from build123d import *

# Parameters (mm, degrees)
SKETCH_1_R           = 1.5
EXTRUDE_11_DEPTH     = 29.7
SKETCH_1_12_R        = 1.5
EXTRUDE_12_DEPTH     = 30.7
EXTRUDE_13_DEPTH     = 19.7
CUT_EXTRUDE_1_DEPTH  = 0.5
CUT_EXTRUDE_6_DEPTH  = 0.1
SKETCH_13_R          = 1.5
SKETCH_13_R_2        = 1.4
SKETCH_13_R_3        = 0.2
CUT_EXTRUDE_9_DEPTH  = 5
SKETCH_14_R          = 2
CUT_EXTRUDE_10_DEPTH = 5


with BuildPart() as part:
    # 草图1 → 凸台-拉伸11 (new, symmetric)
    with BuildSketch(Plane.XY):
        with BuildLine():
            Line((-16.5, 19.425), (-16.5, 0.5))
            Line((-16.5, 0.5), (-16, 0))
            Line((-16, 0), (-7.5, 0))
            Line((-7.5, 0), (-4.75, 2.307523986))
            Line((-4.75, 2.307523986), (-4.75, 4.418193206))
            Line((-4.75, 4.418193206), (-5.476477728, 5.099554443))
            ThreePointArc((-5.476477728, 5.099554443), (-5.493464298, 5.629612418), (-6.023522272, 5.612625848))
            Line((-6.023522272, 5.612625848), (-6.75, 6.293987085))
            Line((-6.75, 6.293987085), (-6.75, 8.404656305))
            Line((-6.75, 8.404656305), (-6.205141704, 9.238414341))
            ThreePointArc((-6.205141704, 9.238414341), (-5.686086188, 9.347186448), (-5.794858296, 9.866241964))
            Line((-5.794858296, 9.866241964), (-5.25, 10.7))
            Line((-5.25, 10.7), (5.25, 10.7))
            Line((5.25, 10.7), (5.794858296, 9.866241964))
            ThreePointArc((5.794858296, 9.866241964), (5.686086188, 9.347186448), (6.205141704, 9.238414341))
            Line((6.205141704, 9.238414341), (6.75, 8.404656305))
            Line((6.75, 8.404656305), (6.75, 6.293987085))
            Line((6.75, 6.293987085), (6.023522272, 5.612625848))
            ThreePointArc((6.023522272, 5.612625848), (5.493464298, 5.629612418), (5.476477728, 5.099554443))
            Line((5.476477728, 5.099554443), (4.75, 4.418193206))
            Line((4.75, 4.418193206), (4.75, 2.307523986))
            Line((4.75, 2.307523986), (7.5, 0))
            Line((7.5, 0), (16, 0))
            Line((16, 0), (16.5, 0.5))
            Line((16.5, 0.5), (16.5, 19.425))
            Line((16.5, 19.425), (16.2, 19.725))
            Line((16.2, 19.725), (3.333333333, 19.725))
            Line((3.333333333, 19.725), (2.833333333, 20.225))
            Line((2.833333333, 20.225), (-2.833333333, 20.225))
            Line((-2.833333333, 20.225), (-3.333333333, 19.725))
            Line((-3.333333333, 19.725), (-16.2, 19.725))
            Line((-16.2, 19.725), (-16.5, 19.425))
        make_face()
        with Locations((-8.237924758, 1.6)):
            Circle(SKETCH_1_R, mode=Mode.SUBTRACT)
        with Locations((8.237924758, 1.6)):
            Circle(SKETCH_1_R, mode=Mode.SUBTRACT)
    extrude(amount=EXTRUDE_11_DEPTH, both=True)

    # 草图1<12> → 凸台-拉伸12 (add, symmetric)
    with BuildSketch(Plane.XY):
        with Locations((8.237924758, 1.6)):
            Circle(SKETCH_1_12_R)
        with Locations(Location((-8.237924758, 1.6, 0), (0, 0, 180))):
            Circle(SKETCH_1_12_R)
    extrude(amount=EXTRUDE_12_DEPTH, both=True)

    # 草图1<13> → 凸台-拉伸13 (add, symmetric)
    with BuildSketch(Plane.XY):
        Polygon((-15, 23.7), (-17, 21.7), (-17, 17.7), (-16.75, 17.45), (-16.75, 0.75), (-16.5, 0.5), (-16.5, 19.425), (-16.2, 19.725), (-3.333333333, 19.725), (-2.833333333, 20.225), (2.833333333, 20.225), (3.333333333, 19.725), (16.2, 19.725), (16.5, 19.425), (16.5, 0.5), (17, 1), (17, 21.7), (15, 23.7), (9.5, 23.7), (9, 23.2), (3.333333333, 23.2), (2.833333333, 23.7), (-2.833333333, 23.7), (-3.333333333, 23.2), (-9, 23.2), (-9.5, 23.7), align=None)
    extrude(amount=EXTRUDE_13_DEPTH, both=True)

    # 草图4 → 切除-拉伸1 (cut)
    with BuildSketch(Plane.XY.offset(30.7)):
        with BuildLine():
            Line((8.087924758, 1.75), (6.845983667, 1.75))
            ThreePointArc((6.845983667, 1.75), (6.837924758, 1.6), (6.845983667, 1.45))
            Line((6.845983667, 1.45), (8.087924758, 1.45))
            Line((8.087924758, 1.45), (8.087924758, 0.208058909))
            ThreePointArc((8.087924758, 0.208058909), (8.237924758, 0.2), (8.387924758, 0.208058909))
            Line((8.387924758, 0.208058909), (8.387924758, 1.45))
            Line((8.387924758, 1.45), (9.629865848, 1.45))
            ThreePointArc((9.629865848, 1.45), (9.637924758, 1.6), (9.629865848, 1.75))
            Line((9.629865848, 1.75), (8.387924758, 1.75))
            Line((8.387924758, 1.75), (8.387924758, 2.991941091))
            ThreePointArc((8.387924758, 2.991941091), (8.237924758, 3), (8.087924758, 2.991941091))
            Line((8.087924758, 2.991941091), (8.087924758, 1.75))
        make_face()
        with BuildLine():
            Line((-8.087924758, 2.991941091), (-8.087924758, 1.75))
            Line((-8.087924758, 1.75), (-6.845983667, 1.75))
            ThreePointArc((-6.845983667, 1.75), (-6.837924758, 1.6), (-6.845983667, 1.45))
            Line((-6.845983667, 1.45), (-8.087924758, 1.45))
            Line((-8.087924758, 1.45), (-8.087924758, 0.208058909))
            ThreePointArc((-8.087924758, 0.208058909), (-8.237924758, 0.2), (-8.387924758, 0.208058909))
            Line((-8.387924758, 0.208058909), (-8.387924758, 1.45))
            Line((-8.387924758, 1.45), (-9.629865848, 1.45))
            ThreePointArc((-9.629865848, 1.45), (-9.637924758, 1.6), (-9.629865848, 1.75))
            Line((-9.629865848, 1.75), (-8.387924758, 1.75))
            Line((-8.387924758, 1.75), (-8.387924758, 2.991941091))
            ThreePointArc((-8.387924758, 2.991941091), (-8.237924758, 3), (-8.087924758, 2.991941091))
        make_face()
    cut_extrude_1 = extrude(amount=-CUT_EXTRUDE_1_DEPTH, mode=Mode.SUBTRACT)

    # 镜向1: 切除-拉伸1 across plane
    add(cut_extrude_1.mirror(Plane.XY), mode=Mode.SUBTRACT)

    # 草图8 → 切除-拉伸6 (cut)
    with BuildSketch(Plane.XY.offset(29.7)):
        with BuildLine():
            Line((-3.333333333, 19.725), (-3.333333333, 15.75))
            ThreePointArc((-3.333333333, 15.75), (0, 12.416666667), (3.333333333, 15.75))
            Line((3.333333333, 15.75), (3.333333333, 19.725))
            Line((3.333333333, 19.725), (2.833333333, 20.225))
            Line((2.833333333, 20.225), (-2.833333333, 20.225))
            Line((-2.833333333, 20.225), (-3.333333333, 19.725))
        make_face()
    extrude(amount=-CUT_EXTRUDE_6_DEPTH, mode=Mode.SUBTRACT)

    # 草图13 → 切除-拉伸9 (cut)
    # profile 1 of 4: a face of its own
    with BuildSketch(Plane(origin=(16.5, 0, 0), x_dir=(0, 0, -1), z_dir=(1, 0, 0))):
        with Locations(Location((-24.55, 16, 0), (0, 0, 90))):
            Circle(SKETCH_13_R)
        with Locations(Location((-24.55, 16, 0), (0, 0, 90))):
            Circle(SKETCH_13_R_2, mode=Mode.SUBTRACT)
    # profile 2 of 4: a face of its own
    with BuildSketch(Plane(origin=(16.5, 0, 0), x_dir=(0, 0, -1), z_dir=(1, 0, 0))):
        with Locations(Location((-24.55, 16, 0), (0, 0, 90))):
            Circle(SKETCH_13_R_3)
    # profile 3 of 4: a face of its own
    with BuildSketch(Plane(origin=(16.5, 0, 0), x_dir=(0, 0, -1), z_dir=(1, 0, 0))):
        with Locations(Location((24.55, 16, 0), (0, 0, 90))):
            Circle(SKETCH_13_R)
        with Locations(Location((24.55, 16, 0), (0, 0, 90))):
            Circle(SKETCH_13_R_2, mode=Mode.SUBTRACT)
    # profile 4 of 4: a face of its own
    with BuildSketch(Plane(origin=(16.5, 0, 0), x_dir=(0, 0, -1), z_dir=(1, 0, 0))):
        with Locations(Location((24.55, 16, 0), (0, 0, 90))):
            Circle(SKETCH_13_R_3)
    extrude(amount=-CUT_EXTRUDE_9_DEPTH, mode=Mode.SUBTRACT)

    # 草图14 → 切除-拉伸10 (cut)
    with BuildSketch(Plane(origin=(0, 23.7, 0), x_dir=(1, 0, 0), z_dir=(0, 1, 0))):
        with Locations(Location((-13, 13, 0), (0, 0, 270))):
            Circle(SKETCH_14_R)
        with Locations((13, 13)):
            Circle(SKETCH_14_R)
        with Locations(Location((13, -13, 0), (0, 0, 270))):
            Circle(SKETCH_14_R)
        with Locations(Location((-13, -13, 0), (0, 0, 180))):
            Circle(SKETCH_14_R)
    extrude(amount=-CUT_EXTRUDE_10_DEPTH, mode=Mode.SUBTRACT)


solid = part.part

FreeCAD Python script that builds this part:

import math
import FreeCAD as App
import Part
import Sketcher
Q = App.Units.Quantity

doc = App.newDocument("Part")
body = doc.addObject("PartDesign::Body", "Body")

sketch1 = doc.addObject("Sketcher::SketchObject", "Sketch")
body.addObject(sketch1)
sketch1.AttachmentSupport = (doc.XY_Plane, [""])
sketch1.MapMode = "FlatFace"
sketch1.addGeometry([
    Part.LineSegment(App.Vector(-16.5, 19.425, 0), App.Vector(-16.5, 0.5, 0)),
    Part.LineSegment(App.Vector(-16.5, 0.5, 0), App.Vector(-16, 0, 0)),
    Part.LineSegment(App.Vector(-16, 0, 0), App.Vector(-7.5, 0, 0)),
    Part.LineSegment(App.Vector(-7.5, 0, 0), App.Vector(-4.75, 2.307524, 0)),
    Part.LineSegment(App.Vector(-4.75, 2.307524, 0), App.Vector(-4.75, 4.418193, 0)),
    Part.LineSegment(App.Vector(-4.75, 4.418193, 0), App.Vector(-5.476478, 5.099554, 0)),
    Part.ArcOfCircle(Part.Circle(App.Vector(-5.75, 5.35609, 0), App.Vector(0, 0, 1), 0.375), math.radians(-43.164492), math.radians(136.835508)),
    Part.LineSegment(App.Vector(-6.023522, 5.612626, 0), App.Vector(-6.75, 6.293987, 0)),
    Part.LineSegment(App.Vector(-6.75, 6.293987, 0), App.Vector(-6.75, 8.404656, 0)),
    Part.LineSegment(App.Vector(-6.75, 8.404656, 0), App.Vector(-6.205142, 9.238414, 0)),
    Part.ArcOfCircle(Part.Circle(App.Vector(-6, 9.552328, 0), App.Vector(0, 0, 1), 0.375), math.radians(-123.164492), math.radians(56.835508)),
    Part.LineSegment(App.Vector(-5.794858, 9.866242, 0), App.Vector(-5.25, 10.7, 0)),
    Part.LineSegment(App.Vector(-5.25, 10.7, 0), App.Vector(5.25, 10.7, 0)),
    Part.LineSegment(App.Vector(5.25, 10.7, 0), App.Vector(5.794858, 9.866242, 0)),
    Part.ArcOfCircle(Part.Circle(App.Vector(6, 9.552328, 0), App.Vector(0, 0, 1), 0.375), math.radians(123.164492), math.radians(303.164492)),
    Part.LineSegment(App.Vector(6.205142, 9.238414, 0), App.Vector(6.75, 8.404656, 0)),
    Part.LineSegment(App.Vector(6.75, 8.404656, 0), App.Vector(6.75, 6.293987, 0)),
    Part.LineSegment(App.Vector(6.75, 6.293987, 0), App.Vector(6.023522, 5.612626, 0)),
    Part.ArcOfCircle(Part.Circle(App.Vector(5.75, 5.35609, 0), App.Vector(0, 0, 1), 0.375), math.radians(43.164492), math.radians(223.164492)),
    Part.LineSegment(App.Vector(5.476478, 5.099554, 0), App.Vector(4.75, 4.418193, 0)),
    Part.LineSegment(App.Vector(4.75, 4.418193, 0), App.Vector(4.75, 2.307524, 0)),
    Part.LineSegment(App.Vector(4.75, 2.307524, 0), App.Vector(7.5, 0, 0)),
    Part.LineSegment(App.Vector(7.5, 0, 0), App.Vector(16, 0, 0)),
    Part.LineSegment(App.Vector(16, 0, 0), App.Vector(16.5, 0.5, 0)),
    Part.LineSegment(App.Vector(16.5, 0.5, 0), App.Vector(16.5, 19.425, 0)),
    Part.LineSegment(App.Vector(16.5, 19.425, 0), App.Vector(16.2, 19.725, 0)),
    Part.LineSegment(App.Vector(16.2, 19.725, 0), App.Vector(3.333333, 19.725, 0)),
    Part.LineSegment(App.Vector(3.333333, 19.725, 0), App.Vector(2.833333, 20.225, 0)),
    Part.LineSegment(App.Vector(2.833333, 20.225, 0), App.Vector(-2.833333, 20.225, 0)),
    Part.LineSegment(App.Vector(-2.833333, 20.225, 0), App.Vector(-3.333333, 19.725, 0)),
    Part.LineSegment(App.Vector(-3.333333, 19.725, 0), App.Vector(-16.2, 19.725, 0)),
    Part.LineSegment(App.Vector(-16.2, 19.725, 0), App.Vector(-16.5, 19.425, 0)),
    Part.Circle(App.Vector(-8.237925, 1.6, 0), App.Vector(0, 0, 1), 1.5),
    Part.Circle(App.Vector(8.237925, 1.6, 0), App.Vector(0, 0, 1), 1.5),
], False)
sketch1.addConstraint([
    Sketcher.Constraint("Coincident", 0, 2, 1, 1),
    Sketcher.Constraint("Coincident", 1, 2, 2, 1),
    Sketcher.Constraint("Coincident", 2, 2, 3, 1),
    Sketcher.Constraint("Coincident", 3, 2, 4, 1),
    Sketcher.Constraint("Coincident", 4, 2, 5, 1),
    Sketcher.Constraint("Coincident", 5, 2, 6, 1),
    Sketcher.Constraint("Coincident", 6, 2, 7, 1),
    Sketcher.Constraint("Coincident", 7, 2, 8, 1),
    Sketcher.Constraint("Coincident", 8, 2, 9, 1),
    Sketcher.Constraint("Coincident", 9, 2, 10, 1),
    Sketcher.Constraint("Coincident", 10, 2, 11, 1),
    Sketcher.Constraint("Coincident", 11, 2, 12, 1),
    Sketcher.Constraint("Coincident", 12, 2, 13, 1),
    Sketcher.Constraint("Coincident", 13, 2, 14, 1),
    Sketcher.Constraint("Coincident", 14, 2, 15, 1),
    Sketcher.Constraint("Coincident", 15, 2, 16, 1),
    Sketcher.Constraint("Coincident", 16, 2, 17, 1),
    Sketcher.Constraint("Coincident", 17, 2, 18, 1),
    Sketcher.Constraint("Coincident", 18, 2, 19, 1),
    Sketcher.Constraint("Coincident", 19, 2, 20, 1),
    Sketcher.Constraint("Coincident", 20, 2, 21, 1),
    Sketcher.Constraint("Coincident", 21, 2, 22, 1),
    Sketcher.Constraint("Coincident", 22, 2, 23, 1),
    Sketcher.Constraint("Coincident", 23, 2, 24, 1),
    Sketcher.Constraint("Coincident", 24, 2, 25, 1),
    Sketcher.Constraint("Coincident", 25, 2, 26, 1),
    Sketcher.Constraint("Coincident", 26, 2, 27, 1),
    Sketcher.Constraint("Coincident", 27, 2, 28, 1),
    Sketcher.Constraint("Coincident", 28, 2, 29, 1),
    Sketcher.Constraint("Coincident", 29, 2, 30, 1),
    Sketcher.Constraint("Coincident", 30, 2, 31, 1),
    Sketcher.Constraint("Coincident", 31, 2, 0, 1),
    Sketcher.Constraint("Vertical", 0),
    Sketcher.Constraint("Horizontal", 2),
    Sketcher.Constraint("Vertical", 4),
    Sketcher.Constraint("Vertical", 8),
    Sketcher.Constraint("Horizontal", 12),
    Sketcher.Constraint("Vertical", 16),
    Sketcher.Constraint("Vertical", 20),
    Sketcher.Constraint("Horizontal", 22),
    Sketcher.Constraint("Vertical", 24),
    Sketcher.Constraint("Horizontal", 26),
    Sketcher.Constraint("Horizontal", 28),
    Sketcher.Constraint("Horizontal", 30),
    Sketcher.Constraint("Equal", 6, 10),
    Sketcher.Constraint("Equal", 10, 14),
    Sketcher.Constraint("Equal", 14, 18),
    Sketcher.Constraint("Equal", 32, 33),
    Sketcher.Constraint("Symmetric", 2, 2, 21, 2, -1, 1),
    Sketcher.Constraint("Symmetric", 10, 3, 14, 3, -2),
    Sketcher.Constraint("Symmetric", 6, 3, 18, 3, -2),
    Sketcher.Constraint("Symmetric", 32, 3, 33, 3, -2),
    Sketcher.Constraint("Symmetric", 8, 2, 15, 2, -2),
    Sketcher.Constraint("Symmetric", 4, 2, 19, 2, -2),
    Sketcher.Constraint("Symmetric", 1, 2, 22, 2, -2),
    Sketcher.Constraint("Symmetric", 0, 2, 23, 2, -2),
    Sketcher.Constraint("Symmetric", 26, 2, 29, 2, -2),
    Sketcher.Constraint("Parallel", 5, 7),
    Sketcher.Constraint("Parallel", 9, 11),
    Sketcher.Constraint("Parallel", 13, 15),
    Sketcher.Constraint("Parallel", 17, 19),
    Sketcher.Constraint("Perpendicular", 1, 23),
    Sketcher.Constraint("Perpendicular", 23, 25),
    Sketcher.Constraint("Parallel", 25, 27),
    Sketcher.Constraint("Perpendicular", 27, 29),
    Sketcher.Constraint("Parallel", 29, 31),
    Sketcher.Constraint("Horizontal", 10, 2, 13, 2),
    Sketcher.Constraint("Horizontal", 9, 2, 14, 2),
    Sketcher.Constraint("Horizontal", 7, 2, 16, 2),
    Sketcher.Constraint("Horizontal", 6, 2, 17, 2),
    Sketcher.Constraint("Horizontal", 3, 2, 20, 2),
    Sketcher.Constraint("Horizontal", 24, 2, 31, 2),
    Sketcher.Constraint("Equal", 4, 8),
    Sketcher.Constraint("Equal", 5, 7),
    Sketcher.Constraint("Equal", 7, 9),
    Sketcher.Constraint("Equal", 9, 11),
    Sketcher.Constraint("Equal", 23, 27),
    Sketcher.Constraint("Diameter", 32, 3.0),
    Sketcher.Constraint("Angle", 3, Q("40 deg")),
    Sketcher.Constraint("DistanceX", 2, 1, 2, 2, 8.5),
    Sketcher.Constraint("DistanceX", 12, 1, 12, 2, 10.5),
    Sketcher.Constraint("DistanceX", 10, 3, -1, 1, 6.0),
    Sketcher.Constraint("DistanceX", 1, 2, -1, 1, 16.0),
    Sketcher.Constraint("Radius", 6, 0.375),
    Sketcher.Constraint("DistanceX", 0, 2, 2, 2, 9.0),
    Sketcher.Constraint("DistanceX", 6, 3, 3, 2, 1.0),
    Sketcher.Constraint("DistanceX", 7, 2, 6, 3, 1.0),
    Sketcher.Constraint("DistanceY", -1, 1, 32, 3, 1.6),
    Sketcher.Constraint("DistanceY", -1, 1, 11, 2, 10.7),
    Sketcher.Constraint("DistanceX", -1, 1, 25, 2, 16.2),
    Sketcher.Constraint("DistanceX", 6, 3, 18, 3, 11.5),
    Sketcher.Constraint("DistanceY", 0, 2, 0, 1, 18.925),
    Sketcher.Constraint("DistanceY", 4, 1, 4, 2, 2.110669),
    Sketcher.Constraint("DistanceY", 3, 2, 6, 2, 3.305102),
    Sketcher.Constraint("DistanceX", 26, 2, 26, 1, 12.866667),
    Sketcher.Constraint("DistanceX", 9, 2, -1, 1, 6.205142),
    Sketcher.Constraint("DistanceX", 32, 3, 33, 3, 16.47585),
])
pad1 = doc.addObject("PartDesign::Pad", "Pad")
body.addObject(pad1)
pad1.Profile = sketch1
pad1.Length = 59.4
pad1.Midplane = True

sketch2 = doc.addObject("Sketcher::SketchObject", "Sketch001")
body.addObject(sketch2)
sketch2.AttachmentSupport = (doc.XY_Plane, [""])
sketch2.MapMode = "FlatFace"
sketch2.addGeometry([
    Part.Circle(App.Vector(8.237925, 1.6, 0), App.Vector(0, 0, 1), 1.5),
    Part.Circle(App.Vector(-8.237925, 1.6, 0), App.Vector(0, 0, 1), 1.5),
], False)
sketch2.addConstraint([
    Sketcher.Constraint("Equal", 0, 1),
    Sketcher.Constraint("Symmetric", 0, 3, 1, 3, -2),
    Sketcher.Constraint("Diameter", 0, 3.0),
    Sketcher.Constraint("DistanceY", -1, 1, 0, 3, 1.6),
    Sketcher.Constraint("DistanceX", 1, 3, 0, 3, 16.47585),
])
pad2 = doc.addObject("PartDesign::Pad", "Pad001")
body.addObject(pad2)
pad2.Profile = sketch2
pad2.Length = 61.4
pad2.Midplane = True

sketch3 = doc.addObject("Sketcher::SketchObject", "Sketch002")
body.addObject(sketch3)
sketch3.AttachmentSupport = (doc.XY_Plane, [""])
sketch3.MapMode = "FlatFace"
sketch3.addGeometry([
    Part.LineSegment(App.Vector(-15, 23.7, 0), App.Vector(-17, 21.7, 0)),
    Part.LineSegment(App.Vector(-17, 21.7, 0), App.Vector(-17, 17.7, 0)),
    Part.LineSegment(App.Vector(-17, 17.7, 0), App.Vector(-16.75, 17.45, 0)),
    Part.LineSegment(App.Vector(-16.75, 17.45, 0), App.Vector(-16.75, 0.75, 0)),
    Part.LineSegment(App.Vector(-16.75, 0.75, 0), App.Vector(-16.5, 0.5, 0)),
    Part.LineSegment(App.Vector(-16.5, 0.5, 0), App.Vector(-16.5, 19.425, 0)),
    Part.LineSegment(App.Vector(-16.5, 19.425, 0), App.Vector(-16.2, 19.725, 0)),
    Part.LineSegment(App.Vector(-16.2, 19.725, 0), App.Vector(-3.333333, 19.725, 0)),
    Part.LineSegment(App.Vector(-3.333333, 19.725, 0), App.Vector(-2.833333, 20.225, 0)),
    Part.LineSegment(App.Vector(-2.833333, 20.225, 0), App.Vector(2.833333, 20.225, 0)),
    Part.LineSegment(App.Vector(2.833333, 20.225, 0), App.Vector(3.333333, 19.725, 0)),
    Part.LineSegment(App.Vector(3.333333, 19.725, 0), App.Vector(16.2, 19.725, 0)),
    Part.LineSegment(App.Vector(16.2, 19.725, 0), App.Vector(16.5, 19.425, 0)),
    Part.LineSegment(App.Vector(16.5, 19.425, 0), App.Vector(16.5, 0.5, 0)),
    Part.LineSegment(App.Vector(16.5, 0.5, 0), App.Vector(17, 1, 0)),
    Part.LineSegment(App.Vector(17, 1, 0), App.Vector(17, 21.7, 0)),
    Part.LineSegment(App.Vector(17, 21.7, 0), App.Vector(15, 23.7, 0)),
    Part.LineSegment(App.Vector(15, 23.7, 0), App.Vector(9.5, 23.7, 0)),
    Part.LineSegment(App.Vector(9.5, 23.7, 0), App.Vector(9, 23.2, 0)),
    Part.LineSegment(App.Vector(9, 23.2, 0), App.Vector(3.333333, 23.2, 0)),
    Part.LineSegment(App.Vector(3.333333, 23.2, 0), App.Vector(2.833333, 23.7, 0)),
    Part.LineSegment(App.Vector(2.833333, 23.7, 0), App.Vector(-2.833333, 23.7, 0)),
    Part.LineSegment(App.Vector(-2.833333, 23.7, 0), App.Vector(-3.333333, 23.2, 0)),
    Part.LineSegment(App.Vector(-3.333333, 23.2, 0), App.Vector(-9, 23.2, 0)),
    Part.LineSegment(App.Vector(-9, 23.2, 0), App.Vector(-9.5, 23.7, 0)),
    Part.LineSegment(App.Vector(-9.5, 23.7, 0), App.Vector(-15, 23.7, 0)),
], False)
sketch3.addConstraint([
    Sketcher.Constraint("Coincident", 0, 2, 1, 1),
    Sketcher.Constraint("Coincident", 1, 2, 2, 1),
    Sketcher.Constraint("Coincident", 2, 2, 3, 1),
    Sketcher.Constraint("Coincident", 3, 2, 4, 1),
    Sketcher.Constraint("Coincident", 4, 2, 5, 1),
    Sketcher.Constraint("Coincident", 5, 2, 6, 1),
    Sketcher.Constraint("Coincident", 6, 2, 7, 1),
    Sketcher.Constraint("Coincident", 7, 2, 8, 1),
    Sketcher.Constraint("Coincident", 8, 2, 9, 1),
    Sketcher.Constraint("Coincident", 9, 2, 10, 1),
    Sketcher.Constraint("Coincident", 10, 2, 11, 1),
    Sketcher.Constraint("Coincident", 11, 2, 12, 1),
    Sketcher.Constraint("Coincident", 12, 2, 13, 1),
    Sketcher.Constraint("Coincident", 13, 2, 14, 1),
    Sketcher.Constraint("Coincident", 14, 2, 15, 1),
    Sketcher.Constraint("Coincident", 15, 2, 16, 1),
    Sketcher.Constraint("Coincident", 16, 2, 17, 1),
    Sketcher.Constraint("Coincident", 17, 2, 18, 1),
    Sketcher.Constraint("Coincident", 18, 2, 19, 1),
    Sketcher.Constraint("Coincident", 19, 2, 20, 1),
    Sketcher.Constraint("Coincident", 20, 2, 21, 1),
    Sketcher.Constraint("Coincident", 21, 2, 22, 1),
    Sketcher.Constraint("Coincident", 22, 2, 23, 1),
    Sketcher.Constraint("Coincident", 23, 2, 24, 1),
    Sketcher.Constraint("Coincident", 24, 2, 25, 1),
    Sketcher.Constraint("Coincident", 25, 2, 0, 1),
    Sketcher.Constraint("Vertical", 1),
    Sketcher.Constraint("Vertical", 3),
    Sketcher.Constraint("Vertical", 5),
    Sketcher.Constraint("Horizontal", 7),
    Sketcher.Constraint("Horizontal", 9),
    Sketcher.Constraint("Horizontal", 11),
    Sketcher.Constraint("Vertical", 13),
    Sketcher.Constraint("Vertical", 15),
    Sketcher.Constraint("Horizontal", 17),
    Sketcher.Constraint("Horizontal", 19),
    Sketcher.Constraint("Horizontal", 21),
    Sketcher.Constraint("Horizontal", 23),
    Sketcher.Constraint("Horizontal", 25),
    Sketcher.Constraint("Symmetric", 7, 2, 10, 2, -2),
    Sketcher.Constraint("Symmetric", 5, 2, 12, 2, -2),
    Sketcher.Constraint("Symmetric", 0, 2, 15, 2, -2),
    Sketcher.Constraint("Symmetric", 19, 2, 22, 2, -2),
    Sketcher.Constraint("Symmetric", 17, 2, 24, 2, -2),
    Sketcher.Constraint("Perpendicular", 0, 2),
    Sketcher.Constraint("Parallel", 2, 4),
    Sketcher.Constraint("Perpendicular", 4, 6),
    Sketcher.Constraint("Parallel", 6, 8),
    Sketcher.Constraint("Perpendicular", 8, 10),
    Sketcher.Constraint("Parallel", 10, 12),
    Sketcher.Constraint("Perpendicular", 12, 14),
    Sketcher.Constraint("Perpendicular", 14, 16),
    Sketcher.Constraint("Perpendicular", 16, 18),
    Sketcher.Constraint("Perpendicular", 18, 20),
    Sketcher.Constraint("Perpendicular", 20, 22),
    Sketcher.Constraint("Perpendicular", 22, 24),
    Sketcher.Constraint("Horizontal", 4, 2, 13, 2),
    Sketcher.Constraint("Horizontal", 17, 2, 20, 2),
    Sketcher.Constraint("Vertical", 10, 2, 19, 2),
    Sketcher.Constraint("Vertical", 9, 2, 20, 2),
    Sketcher.Constraint("Equal", 7, 11),
    Sketcher.Constraint("Equal", 9, 19),
    Sketcher.Constraint("Equal", 2, 4),
    Sketcher.Constraint("Equal", 10, 14),
    Sketcher.Constraint("DistanceY", 1, 2, 1, 1, 4.0),
    Sketcher.Constraint("DistanceX", 17, 2, 17, 1, 5.5),
    Sketcher.Constraint("DistanceY", 3, 2, 3, 1, 16.7),
    Sketcher.Constraint("DistanceX", 0, 2, -1, 1, 17.0),
    Sketcher.Constraint("DistanceY", -1, 1, 14, 2, 1.0),
    Sketcher.Constraint("DistanceX", -1, 1, 16, 2, 15.0),
    Sketcher.Constraint("DistanceX", -1, 1, 18, 2, 9.0),
    Sketcher.Constraint("DistanceX", 6, 2, -1, 1, 16.2),
    Sketcher.Constraint("DistanceY", 5, 1, 5, 2, 18.925),
])
pad3 = doc.addObject("PartDesign::Pad", "Pad002")
body.addObject(pad3)
pad3.Profile = sketch3
pad3.Length = 39.4
pad3.Midplane = True

sketch4 = doc.addObject("Sketcher::SketchObject", "Sketch003")
body.addObject(sketch4)
sketch4.AttachmentSupport = (doc.XY_Plane, [""])
sketch4.MapMode = "FlatFace"
sketch4.AttachmentOffset = App.Placement(App.Vector(0, 0, 30.7), App.Rotation())
sketch4.addGeometry([
    Part.LineSegment(App.Vector(8.087925, 1.75, 0), App.Vector(6.845984, 1.75, 0)),
    Part.ArcOfCircle(Part.Circle(App.Vector(8.237925, 1.6, 0), App.Vector(0, 0, 1), 1.4), math.radians(173.84936), math.radians(186.15064)),
    Part.LineSegment(App.Vector(6.845984, 1.45, 0), App.Vector(8.087925, 1.45, 0)),
    Part.LineSegment(App.Vector(8.087925, 1.45, 0), App.Vector(8.087925, 0.208059, 0)),
    Part.ArcOfCircle(Part.Circle(App.Vector(8.237925, 1.6, 0), App.Vector(0, 0, 1), 1.4), math.radians(-96.15064), math.radians(-83.84936)),
    Part.LineSegment(App.Vector(8.387925, 0.208059, 0), App.Vector(8.387925, 1.45, 0)),
    Part.LineSegment(App.Vector(8.387925, 1.45, 0), App.Vector(9.629866, 1.45, 0)),
    Part.ArcOfCircle(Part.Circle(App.Vector(8.237925, 1.6, 0), App.Vector(0, 0, 1), 1.4), math.radians(-6.15064), math.radians(6.15064)),
    Part.LineSegment(App.Vector(9.629866, 1.75, 0), App.Vector(8.387925, 1.75, 0)),
    Part.LineSegment(App.Vector(8.387925, 1.75, 0), App.Vector(8.387925, 2.991941, 0)),
    Part.ArcOfCircle(Part.Circle(App.Vector(8.237925, 1.6, 0), App.Vector(0, 0, 1), 1.4), math.radians(83.84936), math.radians(96.15064)),
    Part.LineSegment(App.Vector(8.087925, 2.991941, 0), App.Vector(8.087925, 1.75, 0)),
    Part.LineSegment(App.Vector(-8.087925, 1.75, 0), App.Vector(-8.087925, 2.991941, 0)),
    Part.ArcOfCircle(Part.Circle(App.Vector(-8.237925, 1.6, 0), App.Vector(0, 0, 1), 1.4), math.radians(83.84936), math.radians(96.15064)),
    Part.LineSegment(App.Vector(-8.387925, 2.991941, 0), App.Vector(-8.387925, 1.75, 0)),
    Part.LineSegment(App.Vector(-8.387925, 1.75, 0), App.Vector(-9.629866, 1.75, 0)),
    Part.ArcOfCircle(Part.Circle(App.Vector(-8.237925, 1.6, 0), App.Vector(0, 0, 1), 1.4), math.radians(173.84936), math.radians(186.15064)),
    Part.LineSegment(App.Vector(-9.629866, 1.45, 0), App.Vector(-8.387925, 1.45, 0)),
    Part.LineSegment(App.Vector(-8.387925, 1.45, 0), App.Vector(-8.387925, 0.208059, 0)),
    Part.ArcOfCircle(Part.Circle(App.Vector(-8.237925, 1.6, 0), App.Vector(0, 0, 1), 1.4), math.radians(-96.15064), math.radians(-83.84936)),
    Part.LineSegment(App.Vector(-8.087925, 0.208059, 0), App.Vector(-8.087925, 1.45, 0)),
    Part.LineSegment(App.Vector(-8.087925, 1.45, 0), App.Vector(-6.845984, 1.45, 0)),
    Part.ArcOfCircle(Part.Circle(App.Vector(-8.237925, 1.6, 0), App.Vector(0, 0, 1), 1.4), math.radians(-6.15064), math.radians(6.15064)),
    Part.LineSegment(App.Vector(-6.845984, 1.75, 0), App.Vector(-8.087925, 1.75, 0)),
], False)
sketch4.addConstraint([
    Sketcher.Constraint("Coincident", 0, 2, 1, 1),
    Sketcher.Constraint("Coincident", 1, 2, 2, 1),
    Sketcher.Constraint("Coincident", 2, 2, 3, 1),
    Sketcher.Constraint("Coincident", 3, 2, 4, 1),
    Sketcher.Constraint("Coincident", 4, 2, 5, 1),
    Sketcher.Constraint("Coincident", 5, 2, 6, 1),
    Sketcher.Constraint("Coincident", 6, 2, 7, 1),
    Sketcher.Constraint("Coincident", 7, 2, 8, 1),
    Sketcher.Constraint("Coincident", 8, 2, 9, 1),
    Sketcher.Constraint("Coincident", 9, 2, 10, 1),
    Sketcher.Constraint("Coincident", 10, 2, 11, 1),
    Sketcher.Constraint("Coincident", 11, 2, 0, 1),
    Sketcher.Constraint("Coincident", 12, 2, 13, 1),
    Sketcher.Constraint("Coincident", 13, 2, 14, 1),
    Sketcher.Constraint("Coincident", 14, 2, 15, 1),
    Sketcher.Constraint("Coincident", 15, 2, 16, 1),
    Sketcher.Constraint("Coincident", 16, 2, 17, 1),
    Sketcher.Constraint("Coincident", 17, 2, 18, 1),
    Sketcher.Constraint("Coincident", 18, 2, 19, 1),
    Sketcher.Constraint("Coincident", 19, 2, 20, 1),
    Sketcher.Constraint("Coincident", 20, 2, 21, 1),
    Sketcher.Constraint("Coincident", 21, 2, 22, 1),
    Sketcher.Constraint("Coincident", 22, 2, 23, 1),
    Sketcher.Constraint("Coincident", 23, 2, 12, 1),
    Sketcher.Constraint("Horizontal", 0),
    Sketcher.Constraint("Horizontal", 2),
    Sketcher.Constraint("Vertical", 3),
    Sketcher.Constraint("Vertical", 5),
    Sketcher.Constraint("Horizontal", 6),
    Sketcher.Constraint("Horizontal", 8),
    Sketcher.Constraint("Vertical", 9),
    Sketcher.Constraint("Vertical", 11),
    Sketcher.Constraint("Vertical", 12),
    Sketcher.Constraint("Vertical", 14),
    Sketcher.Constraint("Horizontal", 15),
    Sketcher.Constraint("Horizontal", 17),
    Sketcher.Constraint("Vertical", 18),
    Sketcher.Constraint("Vertical", 20),
    Sketcher.Constraint("Horizontal", 21),
    Sketcher.Constraint("Horizontal", 23),
    Sketcher.Constraint("Coincident", 4, 3, 1, 3),
    Sketcher.Constraint("Coincident", 7, 3, 1, 3),
    Sketcher.Constraint("Coincident", 10, 3, 1, 3),
    Sketcher.Constraint("Coincident", 16, 3, 13, 3),
    Sketcher.Constraint("Coincident", 19, 3, 13, 3),
    Sketcher.Constraint("Coincident", 22, 3, 13, 3),
    Sketcher.Constraint("Equal", 1, 4),
    Sketcher.Constraint("Equal", 4, 7),
    Sketcher.Constraint("Equal", 7, 10),
    Sketcher.Constraint("Equal", 10, 13),
    Sketcher.Constraint("Equal", 13, 16),
    Sketcher.Constraint("Equal", 16, 19),
    Sketcher.Constraint("Equal", 19, 22),
    Sketcher.Constraint("Symmetric", 1, 3, 13, 3, -2),
    Sketcher.Constraint("Symmetric", 8, 2, 14, 2, -2),
    Sketcher.Constraint("Symmetric", 5, 2, 17, 2, -2),
    Sketcher.Constraint("Symmetric", 2, 2, 20, 2, -2),
    Sketcher.Constraint("Symmetric", 11, 2, 23, 2, -2),
    Sketcher.Constraint("Horizontal", 3, 2, 4, 2),
    Sketcher.Constraint("Horizontal", 2, 2, 5, 2),
    Sketcher.Constraint("Horizontal", 0, 2, 7, 2),
    Sketcher.Constraint("Horizontal", 9, 2, 10, 2),
    Sketcher.Constraint("Vertical", 0, 2, 1, 2),
    Sketcher.Constraint("Vertical", 5, 2, 8, 2),
    Sketcher.Constraint("Equal", 23, 3),
    Sketcher.Constraint("Radius", 1, 1.4),
    Sketcher.Constraint("DistanceY", -1, 1, 1, 3, 1.6),
    Sketcher.Constraint("DistanceY", 1, 2, 0, 2, 0.3),
    Sketcher.Constraint("DistanceX", 13, 3, 4, 3, 16.47585),
])
pocket1 = doc.addObject("PartDesign::Pocket", "Pocket")
body.addObject(pocket1)
pocket1.Profile = sketch4
pocket1.Length = 0.5
doc.recompute()

mirrored = doc.addObject("PartDesign::Mirrored", "Mirrored")
body.addObject(mirrored)
mirrored.Originals = [pocket1]
mirrored.MirrorPlane = (doc.XY_Plane, [""])
body.Tip = mirrored

sketch5 = doc.addObject("Sketcher::SketchObject", "Sketch004")
body.addObject(sketch5)
sketch5.AttachmentSupport = (doc.XY_Plane, [""])
sketch5.MapMode = "FlatFace"
sketch5.AttachmentOffset = App.Placement(App.Vector(0, 0, 29.7), App.Rotation())
sketch5.addGeometry([
    Part.LineSegment(App.Vector(-3.333333, 19.725, 0), App.Vector(-3.333333, 15.75, 0)),
    Part.ArcOfCircle(Part.Circle(App.Vector(0, 15.75, 0), App.Vector(0, 0, 1), 3.333333), math.radians(180), math.radians(360)),
    Part.LineSegment(App.Vector(3.333333, 15.75, 0), App.Vector(3.333333, 19.725, 0)),
    Part.LineSegment(App.Vector(3.333333, 19.725, 0), App.Vector(2.833333, 20.225, 0)),
    Part.LineSegment(App.Vector(2.833333, 20.225, 0), App.Vector(-2.833333, 20.225, 0)),
    Part.LineSegment(App.Vector(-2.833333, 20.225, 0), App.Vector(-3.333333, 19.725, 0)),
], False)
sketch5.addConstraint([
    Sketcher.Constraint("Tangent", 0, 2, 1, 1),
    Sketcher.Constraint("Tangent", 1, 2, 2, 1),
    Sketcher.Constraint("Coincident", 2, 2, 3, 1),
    Sketcher.Constraint("Coincident", 3, 2, 4, 1),
    Sketcher.Constraint("Coincident", 4, 2, 5, 1),
    Sketcher.Constraint("Coincident", 5, 2, 0, 1),
    Sketcher.Constraint("Vertical", 0),
    Sketcher.Constraint("Vertical", 2),
    Sketcher.Constraint("Horizontal", 4),
    Sketcher.Constraint("Symmetric", 2, 2, 5, 2, -2),
    Sketcher.Constraint("Perpendicular", 3, 5),
    Sketcher.Constraint("Equal", 3, 5),
    Sketcher.Constraint("DistanceX", 3, 2, 2, 2, 0.5),
    Sketcher.Constraint("DistanceY", 0, 2, 0, 1, 3.975),
    Sketcher.Constraint("DistanceY", -1, 1, 1, 3, 15.75),
    Sketcher.Constraint("Radius", 1, 3.333333),
])
pocket2 = doc.addObject("PartDesign::Pocket", "Pocket001")
body.addObject(pocket2)
pocket2.Profile = sketch5
pocket2.Length = 0.1

sketch6 = doc.addObject("Sketcher::SketchObject", "Sketch005")
body.addObject(sketch6)
sketch6.AttachmentSupport = (doc.YZ_Plane, [""])
sketch6.MapMode = "FlatFace"
sketch6.AttachmentOffset = App.Placement(App.Vector(0, 0, 16.5), App.Rotation())
sketch6.addGeometry([
    Part.Circle(App.Vector(16, 24.55, 0), App.Vector(0, 0, 1), 1.5),
    Part.Circle(App.Vector(16, 24.55, 0), App.Vector(0, 0, 1), 1.4),
    Part.Circle(App.Vector(16, 24.55, 0), App.Vector(0, 0, 1), 0.2),
    Part.Circle(App.Vector(16, -24.55, 0), App.Vector(0, 0, 1), 1.5),
    Part.Circle(App.Vector(16, -24.55, 0), App.Vector(0, 0, 1), 1.4),
    Part.Circle(App.Vector(16, -24.55, 0), App.Vector(0, 0, 1), 0.2),
], False)
sketch6.addConstraint([
    Sketcher.Constraint("Coincident", 1, 3, 0, 3),
    Sketcher.Constraint("Coincident", 2, 3, 0, 3),
    Sketcher.Constraint("Coincident", 4, 3, 3, 3),
    Sketcher.Constraint("Coincident", 5, 3, 3, 3),
    Sketcher.Constraint("Equal", 0, 3),
    Sketcher.Constraint("Equal", 1, 4),
    Sketcher.Constraint("Equal", 2, 5),
    Sketcher.Constraint("Symmetric", 0, 3, 3, 3, -1),
    Sketcher.Constraint("Diameter", 0, 3.0),
    Sketcher.Constraint("Diameter", 1, 2.8),
    Sketcher.Constraint("Diameter", 2, 0.4),
    Sketcher.Constraint("DistanceX", -1, 1, 0, 3, 16.0),
    Sketcher.Constraint("DistanceY", 3, 3, 0, 3, 49.1),
])
pocket3 = doc.addObject("PartDesign::Pocket", "Pocket002")
body.addObject(pocket3)
pocket3.Profile = sketch6
pocket3.Length = 5

sketch7 = doc.addObject("Sketcher::SketchObject", "Sketch006")
body.addObject(sketch7)
sketch7.AttachmentSupport = (doc.XZ_Plane, [""])
sketch7.MapMode = "FlatFace"
sketch7.AttachmentOffset = App.Placement(App.Vector(0, 0, -23.7), App.Rotation())
sketch7.addGeometry([
    Part.Circle(App.Vector(-13, -13, 0), App.Vector(0, 0, 1), 2),
    Part.Circle(App.Vector(13, -13, 0), App.Vector(0, 0, 1), 2),
    Part.Circle(App.Vector(13, 13, 0), App.Vector(0, 0, 1), 2),
    Part.Circle(App.Vector(-13, 13, 0), App.Vector(0, 0, 1), 2),
], False)
sketch7.addConstraint([
    Sketcher.Constraint("Equal", 0, 1),
    Sketcher.Constraint("Equal", 1, 2),
    Sketcher.Constraint("Equal", 2, 3),
    Sketcher.Constraint("Symmetric", 0, 3, 2, 3, -1, 1),
    Sketcher.Constraint("Symmetric", 1, 3, 3, 3, -1, 1),
    Sketcher.Constraint("Symmetric", 0, 3, 1, 3, -2),
    Sketcher.Constraint("Diameter", 0, 4.0),
    Sketcher.Constraint("DistanceX", 0, 3, -1, 1, 13.0),
    Sketcher.Constraint("DistanceY", 0, 3, -1, 1, 13.0),
])
pocket4 = doc.addObject("PartDesign::Pocket", "Pocket003")
body.addObject(pocket4)
pocket4.Profile = sketch7
pocket4.Length = 5
pocket4.Reversed = True

doc.recompute()
